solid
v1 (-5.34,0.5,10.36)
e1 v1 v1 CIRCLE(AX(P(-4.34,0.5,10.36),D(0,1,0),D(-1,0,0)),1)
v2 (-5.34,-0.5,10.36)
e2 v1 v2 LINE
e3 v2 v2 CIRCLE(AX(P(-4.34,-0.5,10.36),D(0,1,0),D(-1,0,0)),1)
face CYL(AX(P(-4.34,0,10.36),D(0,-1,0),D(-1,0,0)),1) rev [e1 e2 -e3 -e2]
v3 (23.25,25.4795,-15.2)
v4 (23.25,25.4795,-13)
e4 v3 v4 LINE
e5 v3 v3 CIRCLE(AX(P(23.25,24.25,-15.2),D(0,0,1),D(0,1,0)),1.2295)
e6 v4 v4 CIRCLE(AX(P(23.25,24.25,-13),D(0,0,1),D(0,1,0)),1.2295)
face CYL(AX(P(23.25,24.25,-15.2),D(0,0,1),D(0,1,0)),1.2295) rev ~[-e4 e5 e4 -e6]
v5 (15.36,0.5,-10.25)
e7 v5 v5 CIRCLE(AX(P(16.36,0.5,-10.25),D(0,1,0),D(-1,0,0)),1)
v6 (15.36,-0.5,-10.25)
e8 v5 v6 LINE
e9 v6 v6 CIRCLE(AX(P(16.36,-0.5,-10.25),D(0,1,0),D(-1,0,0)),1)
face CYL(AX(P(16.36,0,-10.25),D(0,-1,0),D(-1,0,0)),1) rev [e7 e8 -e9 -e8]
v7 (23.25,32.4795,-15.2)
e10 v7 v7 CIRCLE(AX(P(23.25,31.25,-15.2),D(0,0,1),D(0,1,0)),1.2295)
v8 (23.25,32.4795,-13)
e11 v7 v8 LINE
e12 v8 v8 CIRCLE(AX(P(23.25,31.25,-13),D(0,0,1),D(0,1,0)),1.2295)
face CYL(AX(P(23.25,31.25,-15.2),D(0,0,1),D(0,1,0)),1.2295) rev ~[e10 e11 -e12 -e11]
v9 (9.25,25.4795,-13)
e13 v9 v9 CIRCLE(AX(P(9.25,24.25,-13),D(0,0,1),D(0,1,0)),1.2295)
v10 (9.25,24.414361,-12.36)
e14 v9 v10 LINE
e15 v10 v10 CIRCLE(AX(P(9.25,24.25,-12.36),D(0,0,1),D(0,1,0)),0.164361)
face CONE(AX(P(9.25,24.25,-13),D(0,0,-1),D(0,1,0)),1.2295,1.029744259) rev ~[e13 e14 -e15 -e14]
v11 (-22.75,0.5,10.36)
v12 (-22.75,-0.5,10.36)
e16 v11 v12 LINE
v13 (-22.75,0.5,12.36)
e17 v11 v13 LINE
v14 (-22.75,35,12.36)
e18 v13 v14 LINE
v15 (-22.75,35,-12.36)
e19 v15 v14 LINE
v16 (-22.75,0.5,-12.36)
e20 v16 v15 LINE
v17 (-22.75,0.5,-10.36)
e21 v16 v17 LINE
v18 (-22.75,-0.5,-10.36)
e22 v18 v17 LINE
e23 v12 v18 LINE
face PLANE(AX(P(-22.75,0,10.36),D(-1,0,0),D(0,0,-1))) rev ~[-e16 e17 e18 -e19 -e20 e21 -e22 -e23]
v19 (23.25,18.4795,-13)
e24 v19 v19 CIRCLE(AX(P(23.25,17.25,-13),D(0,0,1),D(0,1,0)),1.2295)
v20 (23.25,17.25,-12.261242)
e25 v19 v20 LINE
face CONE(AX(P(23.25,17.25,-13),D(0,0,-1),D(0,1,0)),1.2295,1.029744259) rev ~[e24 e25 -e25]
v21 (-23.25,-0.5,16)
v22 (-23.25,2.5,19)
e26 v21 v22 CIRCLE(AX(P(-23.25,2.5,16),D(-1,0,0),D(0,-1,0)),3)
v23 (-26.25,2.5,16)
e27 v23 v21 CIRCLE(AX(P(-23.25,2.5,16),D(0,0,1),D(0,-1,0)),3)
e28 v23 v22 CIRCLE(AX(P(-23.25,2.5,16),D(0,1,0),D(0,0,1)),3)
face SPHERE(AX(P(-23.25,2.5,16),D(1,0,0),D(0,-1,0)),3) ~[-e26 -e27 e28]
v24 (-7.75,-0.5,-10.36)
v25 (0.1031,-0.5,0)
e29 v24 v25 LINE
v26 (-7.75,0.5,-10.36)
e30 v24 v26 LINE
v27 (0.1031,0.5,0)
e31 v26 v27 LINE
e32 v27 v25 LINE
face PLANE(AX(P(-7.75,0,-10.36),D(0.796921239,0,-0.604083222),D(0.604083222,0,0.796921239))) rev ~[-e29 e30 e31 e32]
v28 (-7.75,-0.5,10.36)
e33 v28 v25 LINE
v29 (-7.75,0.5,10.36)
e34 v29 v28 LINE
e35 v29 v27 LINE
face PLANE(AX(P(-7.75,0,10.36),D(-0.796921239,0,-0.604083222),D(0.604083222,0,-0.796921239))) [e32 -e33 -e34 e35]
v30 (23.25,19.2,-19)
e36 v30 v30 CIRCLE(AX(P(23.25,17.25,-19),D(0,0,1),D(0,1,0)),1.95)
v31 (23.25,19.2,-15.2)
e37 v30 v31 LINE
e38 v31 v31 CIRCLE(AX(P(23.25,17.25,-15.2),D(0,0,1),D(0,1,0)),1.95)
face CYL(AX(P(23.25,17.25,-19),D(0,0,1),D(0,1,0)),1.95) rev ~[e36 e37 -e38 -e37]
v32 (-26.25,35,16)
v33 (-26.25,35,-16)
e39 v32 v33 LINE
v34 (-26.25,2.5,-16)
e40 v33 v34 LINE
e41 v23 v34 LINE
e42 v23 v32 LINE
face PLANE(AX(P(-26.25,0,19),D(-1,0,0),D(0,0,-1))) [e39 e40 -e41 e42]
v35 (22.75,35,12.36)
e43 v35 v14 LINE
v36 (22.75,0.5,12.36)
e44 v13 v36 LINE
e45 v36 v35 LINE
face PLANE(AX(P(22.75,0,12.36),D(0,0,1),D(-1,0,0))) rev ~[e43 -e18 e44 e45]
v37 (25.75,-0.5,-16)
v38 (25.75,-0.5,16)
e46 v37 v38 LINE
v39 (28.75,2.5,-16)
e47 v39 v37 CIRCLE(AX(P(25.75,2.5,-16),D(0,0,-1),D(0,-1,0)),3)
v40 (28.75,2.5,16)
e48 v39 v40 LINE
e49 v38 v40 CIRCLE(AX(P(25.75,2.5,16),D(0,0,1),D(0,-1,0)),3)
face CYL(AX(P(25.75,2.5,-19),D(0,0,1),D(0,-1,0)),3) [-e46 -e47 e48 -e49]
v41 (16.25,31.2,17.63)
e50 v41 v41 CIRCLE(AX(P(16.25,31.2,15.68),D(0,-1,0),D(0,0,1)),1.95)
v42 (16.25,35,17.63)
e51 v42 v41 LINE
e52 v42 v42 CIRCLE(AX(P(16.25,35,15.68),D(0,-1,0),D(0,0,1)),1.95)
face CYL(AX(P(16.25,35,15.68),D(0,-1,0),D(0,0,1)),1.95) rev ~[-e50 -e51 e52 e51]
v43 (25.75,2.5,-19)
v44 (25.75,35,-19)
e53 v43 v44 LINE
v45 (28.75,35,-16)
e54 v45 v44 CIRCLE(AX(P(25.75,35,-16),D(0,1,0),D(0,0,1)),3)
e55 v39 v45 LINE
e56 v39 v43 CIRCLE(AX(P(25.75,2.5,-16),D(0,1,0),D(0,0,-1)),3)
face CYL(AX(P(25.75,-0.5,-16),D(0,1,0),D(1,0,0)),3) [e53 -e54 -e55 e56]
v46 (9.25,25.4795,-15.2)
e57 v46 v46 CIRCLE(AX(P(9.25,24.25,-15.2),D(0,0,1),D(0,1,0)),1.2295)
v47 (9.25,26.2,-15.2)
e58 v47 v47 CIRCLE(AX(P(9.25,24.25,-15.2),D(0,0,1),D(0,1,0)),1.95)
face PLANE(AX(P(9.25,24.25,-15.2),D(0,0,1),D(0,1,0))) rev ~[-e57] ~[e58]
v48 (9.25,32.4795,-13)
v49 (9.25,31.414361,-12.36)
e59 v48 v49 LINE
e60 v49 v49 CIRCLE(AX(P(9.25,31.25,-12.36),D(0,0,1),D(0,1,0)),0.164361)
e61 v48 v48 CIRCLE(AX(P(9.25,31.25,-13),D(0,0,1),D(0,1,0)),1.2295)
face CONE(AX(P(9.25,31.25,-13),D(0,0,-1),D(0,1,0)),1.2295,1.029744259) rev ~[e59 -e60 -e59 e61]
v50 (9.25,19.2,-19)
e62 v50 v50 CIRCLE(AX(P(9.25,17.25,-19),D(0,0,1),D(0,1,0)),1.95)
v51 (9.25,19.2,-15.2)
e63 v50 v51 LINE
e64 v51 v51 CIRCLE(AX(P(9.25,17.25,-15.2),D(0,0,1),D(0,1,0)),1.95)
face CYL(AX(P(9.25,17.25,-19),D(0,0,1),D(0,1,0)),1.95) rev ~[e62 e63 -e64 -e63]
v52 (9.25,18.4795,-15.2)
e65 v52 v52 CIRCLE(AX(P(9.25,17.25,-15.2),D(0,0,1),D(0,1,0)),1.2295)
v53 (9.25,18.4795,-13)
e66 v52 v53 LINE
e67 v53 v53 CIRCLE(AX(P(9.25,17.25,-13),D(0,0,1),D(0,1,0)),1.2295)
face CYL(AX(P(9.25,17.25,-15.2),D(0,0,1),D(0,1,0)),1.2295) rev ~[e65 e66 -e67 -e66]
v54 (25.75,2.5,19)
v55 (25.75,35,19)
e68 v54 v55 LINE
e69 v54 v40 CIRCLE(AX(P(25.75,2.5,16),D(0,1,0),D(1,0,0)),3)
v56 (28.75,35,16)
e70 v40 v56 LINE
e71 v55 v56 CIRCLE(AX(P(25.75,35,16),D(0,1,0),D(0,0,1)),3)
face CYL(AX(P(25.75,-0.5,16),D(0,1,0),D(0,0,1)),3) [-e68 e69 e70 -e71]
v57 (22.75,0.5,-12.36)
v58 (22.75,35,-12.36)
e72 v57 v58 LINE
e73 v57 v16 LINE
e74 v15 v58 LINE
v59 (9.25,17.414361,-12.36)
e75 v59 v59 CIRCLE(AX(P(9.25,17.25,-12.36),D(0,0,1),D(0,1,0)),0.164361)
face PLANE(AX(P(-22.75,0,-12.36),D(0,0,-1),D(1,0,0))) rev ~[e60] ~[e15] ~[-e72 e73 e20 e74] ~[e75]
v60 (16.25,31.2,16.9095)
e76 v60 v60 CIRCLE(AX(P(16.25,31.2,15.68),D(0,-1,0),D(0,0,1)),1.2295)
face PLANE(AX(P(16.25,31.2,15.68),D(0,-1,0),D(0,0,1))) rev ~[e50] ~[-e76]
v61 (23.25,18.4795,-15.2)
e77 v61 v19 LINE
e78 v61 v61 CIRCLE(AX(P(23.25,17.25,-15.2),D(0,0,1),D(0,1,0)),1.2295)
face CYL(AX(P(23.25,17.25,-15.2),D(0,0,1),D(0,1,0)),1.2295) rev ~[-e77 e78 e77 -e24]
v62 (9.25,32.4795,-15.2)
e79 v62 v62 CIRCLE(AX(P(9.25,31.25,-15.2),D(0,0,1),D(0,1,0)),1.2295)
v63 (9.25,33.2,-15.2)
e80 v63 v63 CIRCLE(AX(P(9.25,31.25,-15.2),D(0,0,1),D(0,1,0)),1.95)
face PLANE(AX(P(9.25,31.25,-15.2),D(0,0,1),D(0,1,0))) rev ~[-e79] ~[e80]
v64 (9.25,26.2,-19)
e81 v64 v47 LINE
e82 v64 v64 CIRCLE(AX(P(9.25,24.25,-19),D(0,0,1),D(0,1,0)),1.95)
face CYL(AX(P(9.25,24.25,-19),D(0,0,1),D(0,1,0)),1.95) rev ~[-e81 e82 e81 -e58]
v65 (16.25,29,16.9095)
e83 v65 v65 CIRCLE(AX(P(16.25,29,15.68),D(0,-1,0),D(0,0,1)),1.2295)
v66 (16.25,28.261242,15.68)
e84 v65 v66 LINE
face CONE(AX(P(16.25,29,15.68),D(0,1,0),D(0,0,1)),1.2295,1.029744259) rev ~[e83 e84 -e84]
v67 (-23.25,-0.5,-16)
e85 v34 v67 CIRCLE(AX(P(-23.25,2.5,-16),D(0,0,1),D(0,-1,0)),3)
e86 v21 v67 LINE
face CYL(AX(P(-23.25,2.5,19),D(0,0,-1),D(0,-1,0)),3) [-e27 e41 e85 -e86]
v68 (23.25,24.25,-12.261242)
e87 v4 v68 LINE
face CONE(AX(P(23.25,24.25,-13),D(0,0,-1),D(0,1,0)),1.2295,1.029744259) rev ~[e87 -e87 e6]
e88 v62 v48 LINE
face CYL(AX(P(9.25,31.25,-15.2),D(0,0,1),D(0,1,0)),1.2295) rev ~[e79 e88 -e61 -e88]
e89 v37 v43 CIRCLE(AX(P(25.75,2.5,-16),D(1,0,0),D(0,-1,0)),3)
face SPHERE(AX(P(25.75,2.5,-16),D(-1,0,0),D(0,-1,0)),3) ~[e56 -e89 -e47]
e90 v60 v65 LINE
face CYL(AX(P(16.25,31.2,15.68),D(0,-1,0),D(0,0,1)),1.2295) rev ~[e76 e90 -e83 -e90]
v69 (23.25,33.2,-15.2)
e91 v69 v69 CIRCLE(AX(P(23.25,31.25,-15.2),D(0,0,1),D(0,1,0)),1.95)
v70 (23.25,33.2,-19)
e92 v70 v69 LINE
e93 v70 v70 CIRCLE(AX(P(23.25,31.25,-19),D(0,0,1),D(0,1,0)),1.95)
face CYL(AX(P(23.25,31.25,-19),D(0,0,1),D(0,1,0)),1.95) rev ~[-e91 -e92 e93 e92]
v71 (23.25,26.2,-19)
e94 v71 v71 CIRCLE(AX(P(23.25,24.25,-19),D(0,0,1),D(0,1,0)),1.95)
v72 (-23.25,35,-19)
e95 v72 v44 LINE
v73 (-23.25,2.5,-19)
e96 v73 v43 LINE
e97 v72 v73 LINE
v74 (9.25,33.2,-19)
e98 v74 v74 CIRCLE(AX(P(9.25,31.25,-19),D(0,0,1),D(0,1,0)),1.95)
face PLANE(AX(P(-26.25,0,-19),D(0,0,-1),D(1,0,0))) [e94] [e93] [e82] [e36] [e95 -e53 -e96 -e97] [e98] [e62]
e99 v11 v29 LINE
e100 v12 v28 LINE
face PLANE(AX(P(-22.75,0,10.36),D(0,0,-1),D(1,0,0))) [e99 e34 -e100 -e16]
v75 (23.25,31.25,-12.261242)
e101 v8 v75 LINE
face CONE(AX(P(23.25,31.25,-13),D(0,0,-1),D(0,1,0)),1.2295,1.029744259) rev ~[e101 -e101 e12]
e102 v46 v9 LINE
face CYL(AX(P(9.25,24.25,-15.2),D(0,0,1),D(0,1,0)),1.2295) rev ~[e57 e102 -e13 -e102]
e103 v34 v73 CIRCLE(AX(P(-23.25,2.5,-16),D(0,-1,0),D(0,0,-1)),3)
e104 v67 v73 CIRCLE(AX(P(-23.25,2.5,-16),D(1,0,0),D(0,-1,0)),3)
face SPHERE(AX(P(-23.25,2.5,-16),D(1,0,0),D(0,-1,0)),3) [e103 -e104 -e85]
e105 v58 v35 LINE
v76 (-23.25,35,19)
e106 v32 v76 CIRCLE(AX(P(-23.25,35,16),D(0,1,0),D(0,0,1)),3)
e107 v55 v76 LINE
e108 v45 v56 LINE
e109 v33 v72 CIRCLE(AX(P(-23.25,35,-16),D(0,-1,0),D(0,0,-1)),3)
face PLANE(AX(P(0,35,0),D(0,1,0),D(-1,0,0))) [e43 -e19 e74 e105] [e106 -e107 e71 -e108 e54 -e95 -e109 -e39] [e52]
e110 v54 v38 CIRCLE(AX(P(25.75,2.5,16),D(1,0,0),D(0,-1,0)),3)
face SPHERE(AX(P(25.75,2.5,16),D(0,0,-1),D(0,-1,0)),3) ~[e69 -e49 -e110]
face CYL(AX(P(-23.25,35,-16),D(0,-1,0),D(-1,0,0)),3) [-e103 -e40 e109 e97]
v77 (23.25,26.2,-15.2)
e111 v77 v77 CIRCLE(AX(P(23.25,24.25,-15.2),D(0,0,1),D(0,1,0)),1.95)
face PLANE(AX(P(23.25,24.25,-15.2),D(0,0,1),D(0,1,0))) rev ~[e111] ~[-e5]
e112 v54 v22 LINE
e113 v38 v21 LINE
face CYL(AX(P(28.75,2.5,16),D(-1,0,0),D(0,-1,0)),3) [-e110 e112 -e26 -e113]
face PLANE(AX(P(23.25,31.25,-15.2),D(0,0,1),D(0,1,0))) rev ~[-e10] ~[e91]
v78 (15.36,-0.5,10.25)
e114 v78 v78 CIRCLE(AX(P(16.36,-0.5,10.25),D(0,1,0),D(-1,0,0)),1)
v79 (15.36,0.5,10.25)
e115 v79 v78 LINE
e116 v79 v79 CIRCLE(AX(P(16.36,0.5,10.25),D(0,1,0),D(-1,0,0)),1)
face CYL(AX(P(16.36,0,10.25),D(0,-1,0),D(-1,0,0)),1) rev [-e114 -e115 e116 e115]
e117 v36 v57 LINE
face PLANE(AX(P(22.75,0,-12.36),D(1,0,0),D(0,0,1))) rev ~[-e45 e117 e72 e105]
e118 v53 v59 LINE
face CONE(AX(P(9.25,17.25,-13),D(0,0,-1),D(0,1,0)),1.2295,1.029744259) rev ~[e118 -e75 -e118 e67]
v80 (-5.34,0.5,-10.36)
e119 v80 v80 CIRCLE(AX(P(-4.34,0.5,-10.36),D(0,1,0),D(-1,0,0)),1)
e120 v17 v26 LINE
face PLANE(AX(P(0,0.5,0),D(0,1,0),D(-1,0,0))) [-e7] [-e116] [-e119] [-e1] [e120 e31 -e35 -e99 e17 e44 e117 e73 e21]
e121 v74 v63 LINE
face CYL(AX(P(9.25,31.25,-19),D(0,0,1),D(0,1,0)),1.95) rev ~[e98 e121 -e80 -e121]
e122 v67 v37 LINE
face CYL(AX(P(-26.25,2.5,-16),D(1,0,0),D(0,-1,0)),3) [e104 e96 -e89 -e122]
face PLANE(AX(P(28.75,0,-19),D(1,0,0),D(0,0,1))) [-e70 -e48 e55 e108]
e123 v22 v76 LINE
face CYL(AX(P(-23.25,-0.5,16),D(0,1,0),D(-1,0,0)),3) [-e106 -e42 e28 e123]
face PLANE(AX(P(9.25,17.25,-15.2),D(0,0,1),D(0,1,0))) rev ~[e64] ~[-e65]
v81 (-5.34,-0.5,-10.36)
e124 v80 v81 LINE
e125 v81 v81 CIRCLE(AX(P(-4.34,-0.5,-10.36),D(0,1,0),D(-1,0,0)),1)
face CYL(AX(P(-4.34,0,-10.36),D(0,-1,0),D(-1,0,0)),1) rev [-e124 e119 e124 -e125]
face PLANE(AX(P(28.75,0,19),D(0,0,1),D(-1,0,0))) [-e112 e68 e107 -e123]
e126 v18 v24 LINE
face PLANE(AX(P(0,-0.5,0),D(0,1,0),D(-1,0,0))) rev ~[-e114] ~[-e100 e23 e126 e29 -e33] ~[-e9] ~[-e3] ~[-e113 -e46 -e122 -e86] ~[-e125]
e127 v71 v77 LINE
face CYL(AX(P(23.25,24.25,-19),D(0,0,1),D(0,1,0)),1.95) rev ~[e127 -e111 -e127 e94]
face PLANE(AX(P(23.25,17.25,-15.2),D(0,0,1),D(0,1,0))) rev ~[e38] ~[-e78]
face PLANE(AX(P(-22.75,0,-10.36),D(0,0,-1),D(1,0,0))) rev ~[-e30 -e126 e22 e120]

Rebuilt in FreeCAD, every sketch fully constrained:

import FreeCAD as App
import Part
import Sketcher


def edges_at(feature, points):
    """Names of the edges that pass closest to the given points."""
    edges = feature.Shape.Edges
    near = lambda p: min(range(len(edges)), key=lambda i: edges[i].distToShape(Part.Vertex(*p))[0])
    return sorted({f"Edge{near(p) + 1}" for p in points})

doc = App.newDocument("Part")
body = doc.addObject("PartDesign::Body", "Body")

# Sketch on XZ plane
sketch1 = body.newObject("Sketcher::SketchObject", "Sketch")
sketch1.AttachmentSupport = (doc.getObject("XZ_Plane"), [""])
sketch1.MapMode = "FlatFace"
sketch1.addGeometry([
    Part.LineSegment(App.Vector(-26.25, -19, 0), App.Vector(-26.25, 19, 0)),  # 0
    Part.LineSegment(App.Vector(-26.25, 19, 0), App.Vector(28.75, 19, 0)),  # 1
    Part.LineSegment(App.Vector(28.75, 19, 0), App.Vector(28.75, -19, 0)),  # 2
    Part.LineSegment(App.Vector(28.75, -19, 0), App.Vector(-26.25, -19, 0)),  # 3
    Part.LineSegment(App.Vector(-7.75, 10.36, 0), App.Vector(-22.75, 10.36, 0)),  # 4
    Part.LineSegment(App.Vector(-22.75, 10.36, 0), App.Vector(-22.75, -10.36, 0)),  # 5
    Part.LineSegment(App.Vector(-22.75, -10.36, 0), App.Vector(-7.75, -10.36, 0)),  # 6
    Part.LineSegment(App.Vector(-7.75, -10.36, 0), App.Vector(0.1031, 0, 0)),  # 7
    Part.LineSegment(App.Vector(0.1031, 0, 0), App.Vector(-7.75, 10.36, 0)),  # 8
    Part.Circle(App.Vector(16.36, -10.25, 0), App.Vector(0, 0, 1), 1),  # 9
    Part.Circle(App.Vector(-4.34, -10.36, 0), App.Vector(0, 0, 1), 1),  # 10
    Part.Circle(App.Vector(16.36, 10.25, 0), App.Vector(0, 0, 1), 1),  # 11
    Part.Circle(App.Vector(-4.34, 10.36, 0), App.Vector(0, 0, 1), 1),  # 12
], False)
sketch1.addConstraint([
    Sketcher.Constraint("Coincident", 0, 2, 1, 1),
    Sketcher.Constraint("Coincident", 1, 2, 2, 1),
    Sketcher.Constraint("Coincident", 2, 2, 3, 1),
    Sketcher.Constraint("Coincident", 3, 2, 0, 1),
    Sketcher.Constraint("Coincident", 4, 2, 5, 1),
    Sketcher.Constraint("Coincident", 5, 2, 6, 1),
    Sketcher.Constraint("Coincident", 6, 2, 7, 1),
    Sketcher.Constraint("Coincident", 7, 2, 8, 1),
    Sketcher.Constraint("Coincident", 8, 2, 4, 1),
    Sketcher.Constraint("Vertical", 0),
    Sketcher.Constraint("Horizontal", 1),
    Sketcher.Constraint("Vertical", 2),
    Sketcher.Constraint("Horizontal", 3),
    Sketcher.Constraint("Horizontal", 4),
    Sketcher.Constraint("Vertical", 5),
    Sketcher.Constraint("Horizontal", 6),
    Sketcher.Constraint("Equal", 9, 10),
    Sketcher.Constraint("Equal", 10, 11),
    Sketcher.Constraint("Equal", 11, 12),
    Sketcher.Constraint("Symmetric", 9, 3, 11, 3, -1),
    Sketcher.Constraint("Symmetric", 10, 3, 12, 3, -1),
    Sketcher.Constraint("Symmetric", 6, 2, 8, 2, -1),
    Sketcher.Constraint("PointOnObject", 7, 2, -1),
    Sketcher.Constraint("Horizontal", 12, 3, 4, 2),
    Sketcher.Constraint("Diameter", 9, 2.0),
    Sketcher.Constraint("DistanceX", 1, 1, 1, 2, 55.0),
    Sketcher.Constraint("DistanceX", 4, 2, 4, 1, 15.0),
    Sketcher.Constraint("DistanceY", 0, 1, 0, 2, 38.0),
    Sketcher.Constraint("Distance", 7, 13.0),
    Sketcher.Constraint("DistanceX", 10, 3, 9, 3, 20.7),
    Sketcher.Constraint("DistanceY", 9, 3, 11, 3, 20.5),
    Sketcher.Constraint("DistanceX", 0, 2, 4, 2, 3.5),
    Sketcher.Constraint("DistanceX", 4, 2, 12, 3, 18.41),
    Sketcher.Constraint("DistanceY", -1, 1, 0, 2, 19.0),
    Sketcher.Constraint("DistanceY", 5, 2, 5, 1, 20.72),
    Sketcher.Constraint("DistanceX", -1, 1, 9, 3, 16.36),
])
pad1 = body.newObject("PartDesign::Pad", "Pad")
pad1.Profile = sketch1
pad1.Length = 1
pad1.Midplane = True

# Sketch on XZ plane
sketch2 = body.newObject("Sketcher::SketchObject", "Sketch001")
sketch2.AttachmentSupport = (doc.getObject("XZ_Plane"), [""])
sketch2.MapMode = "FlatFace"
sketch2.addGeometry([
    Part.LineSegment(App.Vector(-26.25, -19, 0), App.Vector(-26.25, 19, 0)),  # 0
    Part.LineSegment(App.Vector(-26.25, 19, 0), App.Vector(28.75, 19, 0)),  # 1
    Part.LineSegment(App.Vector(28.75, 19, 0), App.Vector(28.75, -19, 0)),  # 2
    Part.LineSegment(App.Vector(28.75, -19, 0), App.Vector(-26.25, -19, 0)),  # 3
    Part.LineSegment(App.Vector(-22.75, 12.36, 0), App.Vector(-22.75, -12.36, 0)),  # 4
    Part.LineSegment(App.Vector(-22.75, -12.36, 0), App.Vector(22.75, -12.36, 0)),  # 5
    Part.LineSegment(App.Vector(22.75, -12.36, 0), App.Vector(22.75, 12.36, 0)),  # 6
    Part.LineSegment(App.Vector(22.75, 12.36, 0), App.Vector(-22.75, 12.36, 0)),  # 7
], False)
sketch2.addConstraint([
    Sketcher.Constraint("Coincident", 0, 2, 1, 1),
    Sketcher.Constraint("Coincident", 1, 2, 2, 1),
    Sketcher.Constraint("Coincident", 2, 2, 3, 1),
    Sketcher.Constraint("Coincident", 3, 2, 0, 1),
    Sketcher.Constraint("Coincident", 4, 2, 5, 1),
    Sketcher.Constraint("Coincident", 5, 2, 6, 1),
    Sketcher.Constraint("Coincident", 6, 2, 7, 1),
    Sketcher.Constraint("Coincident", 7, 2, 4, 1),
    Sketcher.Constraint("Vertical", 0),
    Sketcher.Constraint("Horizontal", 1),
    Sketcher.Constraint("Vertical", 2),
    Sketcher.Constraint("Horizontal", 3),
    Sketcher.Constraint("Vertical", 4),
    Sketcher.Constraint("Horizontal", 5),
    Sketcher.Constraint("Vertical", 6),
    Sketcher.Constraint("Horizontal", 7),
    Sketcher.Constraint("Symmetric", 4, 2, 6, 2, -1, 1),
    Sketcher.Constraint("DistanceX", 1, 1, 1, 2, 55.0),
    Sketcher.Constraint("DistanceY", 0, 1, 0, 2, 38.0),
    Sketcher.Constraint("DistanceX", 5, 1, 5, 2, 45.5),
    Sketcher.Constraint("DistanceY", 4, 2, 4, 1, 24.72),
    Sketcher.Constraint("DistanceX", 3, 2, 4, 2, 3.5),
    Sketcher.Constraint("DistanceY", -1, 1, 0, 2, 19.0),
])
pad2 = body.newObject("PartDesign::Pad", "Pad001")
pad2.Profile = sketch2
pad2.Length = 35
pad2.Reversed = True
doc.recompute()

fillet = body.newObject("PartDesign::Fillet", "Fillet")
fillet.Base = (pad2, edges_at(pad2, [
    (1.25, -0.5, -19),
    (28.75, -0.5, 0),
    (1.25, -0.5, 19),
    (-26.25, -0.5, 0),
    (28.75, 17.25, -19),
    (28.75, 17.25, 19),
    (-26.25, 17.25, 19),
    (-26.25, 17.25, -19),
]))
fillet.Radius = 3

# Sketch on XY plane
sketch3 = body.newObject("Sketcher::SketchObject", "Sketch002")
sketch3.AttachmentSupport = (doc.getObject("XY_Plane"), [""])
sketch3.MapMode = "FlatFace"
sketch3.AttachmentOffset = App.Placement(App.Vector(0, 0, -19), App.Rotation())
sketch3.addGeometry([
    Part.Circle(App.Vector(23.25, 17.25, 0), App.Vector(0, 0, 1), 1.2295),  # 0
    Part.Circle(App.Vector(23.25, 24.25, 0), App.Vector(0, 0, 1), 1.2295),  # 1
    Part.Circle(App.Vector(9.25, 24.25, 0), App.Vector(0, 0, 1), 1.2295),  # 2
    Part.Circle(App.Vector(9.25, 17.25, 0), App.Vector(0, 0, 1), 1.2295),  # 3
    Part.Circle(App.Vector(23.25, 31.25, 0), App.Vector(0, 0, 1), 1.2295),  # 4
    Part.Circle(App.Vector(9.25, 31.25, 0), App.Vector(0, 0, 1), 1.2295),  # 5
], False)
sketch3.addConstraint([
    Sketcher.Constraint("Equal", 0, 1),
    Sketcher.Constraint("Equal", 1, 2),
    Sketcher.Constraint("Equal", 2, 3),
    Sketcher.Constraint("Equal", 3, 4),
    Sketcher.Constraint("Equal", 4, 5),
    Sketcher.Constraint("Horizontal", 1, 3, 2, 3),
    Sketcher.Constraint("Horizontal", 0, 3, 3, 3),
    Sketcher.Constraint("Horizontal", 4, 3, 5, 3),
    Sketcher.Constraint("Vertical", 0, 3, 1, 3),
    Sketcher.Constraint("Vertical", 2, 3, 3, 3),
    Sketcher.Constraint("Vertical", 1, 3, 4, 3),
    Sketcher.Constraint("Vertical", 3, 3, 5, 3),
    Sketcher.Constraint("Diameter", 0, 2.459),
    Sketcher.Constraint("DistanceY", 0, 3, 1, 3, 7.0),
    Sketcher.Constraint("DistanceX", 2, 3, 1, 3, 14.0),
    Sketcher.Constraint("DistanceY", 1, 3, 4, 3, 7.0),
    Sketcher.Constraint("DistanceX", -1, 1, 0, 3, 23.25),
    Sketcher.Constraint("DistanceY", -1, 1, 0, 3, 17.25),
])
doc.recompute()
hole = body.newObject("PartDesign::Hole", "Hole")
hole.Profile = sketch3
hole.ThreadType = "None"
hole.Diameter = 2.459
hole.DepthType = "Dimension"
hole.Depth = 6
hole.DrillPoint = "Angled"
hole.DrillPointAngle = 118
hole.HoleCutType = "Counterbore"
hole.HoleCutDiameter = 3.9
hole.HoleCutDepth = 3.8
hole.Reversed = True

# Sketch on XZ plane
sketch4 = body.newObject("Sketcher::SketchObject", "Sketch003")
sketch4.AttachmentSupport = (doc.getObject("XZ_Plane"), [""])
sketch4.MapMode = "FlatFace"
sketch4.AttachmentOffset = App.Placement(App.Vector(0, 0, -35), App.Rotation())
sketch4.addGeometry(Part.Circle(App.Vector(16.25, 15.68, 0), App.Vector(0, 0, 1), 1.2295), False)
sketch4.addConstraint([
    Sketcher.Constraint("Diameter", 0, 2.459),
    Sketcher.Constraint("DistanceX", -1, 1, 0, 3, 16.25),
    Sketcher.Constraint("DistanceY", -1, 1, 0, 3, 15.68),
])
doc.recompute()
hole2 = body.newObject("PartDesign::Hole", "Hole001")
hole2.Profile = sketch4
hole2.ThreadType = "None"
hole2.Diameter = 2.459
hole2.DepthType = "Dimension"
hole2.Depth = 6
hole2.DrillPoint = "Angled"
hole2.DrillPointAngle = 118
hole2.HoleCutType = "Counterbore"
hole2.HoleCutDiameter = 3.9
hole2.HoleCutDepth = 3.8
hole2.Reversed = True

doc.recompute()
